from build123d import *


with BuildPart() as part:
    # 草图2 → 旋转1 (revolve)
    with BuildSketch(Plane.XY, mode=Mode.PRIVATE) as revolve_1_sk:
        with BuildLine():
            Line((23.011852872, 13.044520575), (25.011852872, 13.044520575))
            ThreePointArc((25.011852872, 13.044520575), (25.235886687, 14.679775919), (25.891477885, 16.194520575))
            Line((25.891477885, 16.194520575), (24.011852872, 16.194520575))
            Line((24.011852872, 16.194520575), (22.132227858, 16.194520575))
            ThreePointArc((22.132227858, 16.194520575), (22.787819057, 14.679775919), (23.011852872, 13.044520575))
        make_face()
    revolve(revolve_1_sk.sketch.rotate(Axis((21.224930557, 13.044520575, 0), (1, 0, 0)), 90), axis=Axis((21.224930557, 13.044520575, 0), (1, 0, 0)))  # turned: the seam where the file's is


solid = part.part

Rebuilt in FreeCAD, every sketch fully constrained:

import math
import FreeCAD as App
import Part
import Sketcher

V = App.Vector
Q = App.Units.Quantity

doc = App.newDocument("Part")
body = doc.addObject("PartDesign::Body", "Body")

# Sketch on XY plane
sketch1 = body.newObject("Sketcher::SketchObject", "Sketch")
sketch1.AttachmentSupport = (doc.getObject("XY_Plane"), [""])
sketch1.MapMode = "FlatFace"
sketch1.addGeometry(Part.LineSegment(V(23.011853, 13.044521, 0), V(25.011853, 13.044521, 0)), False)
sketch1.addGeometry(Part.ArcOfCircle(Part.Circle(V(31.091853, 13.044521, 0), V(0, 0, 1), 6.08), math.radians(148.79564), math.radians(180)), False)
sketch1.addGeometry(Part.LineSegment(V(25.891478, 16.194521, 0), V(22.132228, 16.194521, 0)), False)
sketch1.addGeometry(Part.ArcOfCircle(Part.Circle(V(16.931853, 13.044521, 0), V(0, 0, 1), 6.08), math.radians(0), math.radians(31.204361)), False)
sketch1.addGeometry(Part.LineSegment(V(16.931853, 13.044521, 0), V(31.091853, 13.044521, 0)), True)  # axis
sketch1.addConstraint(Sketcher.Constraint("Coincident", 0, 2, 1, 2))
sketch1.addConstraint(Sketcher.Constraint("Coincident", 1, 1, 2, 1))
sketch1.addConstraint(Sketcher.Constraint("Coincident", 2, 2, 3, 2))
sketch1.addConstraint(Sketcher.Constraint("Coincident", 3, 1, 0, 1))
sketch1.addConstraint(Sketcher.Constraint("Horizontal", 0))
sketch1.addConstraint(Sketcher.Constraint("Horizontal", 2))
sketch1.addConstraint(Sketcher.Constraint("Horizontal", 4))
sketch1.addConstraint(Sketcher.Constraint("Coincident", 4, 1, 3, 3))
sketch1.addConstraint(Sketcher.Constraint("Coincident", 4, 2, 1, 3))
sketch1.addConstraint(Sketcher.Constraint("Equal", 1, 3))
sketch1.addConstraint(Sketcher.Constraint("Horizontal", 3, 3, 0, 2))
sketch1.addConstraint(Sketcher.Constraint("DistanceX", 0, 1, 0, 2, Q("2 mm")))
sketch1.addConstraint(Sketcher.Constraint("Radius", 1, Q("6.08 mm")))
sketch1.addConstraint(Sketcher.Constraint("DistanceY", 0, 2, 1, 1, Q("3.15 mm")))
sketch1.addConstraint(Sketcher.Constraint("DistanceY", -1, 1, 1, 3, Q("13.044521 mm")))
sketch1.addConstraint(Sketcher.Constraint("DistanceX", -1, 1, 1, 3, Q("31.091853 mm")))
revolution = body.newObject("PartDesign::Revolution", "Revolution")
revolution.Profile = sketch1
revolution.ReferenceAxis = (sketch1, ["Axis0"])
revolution.Angle = 360

doc.recompute()
